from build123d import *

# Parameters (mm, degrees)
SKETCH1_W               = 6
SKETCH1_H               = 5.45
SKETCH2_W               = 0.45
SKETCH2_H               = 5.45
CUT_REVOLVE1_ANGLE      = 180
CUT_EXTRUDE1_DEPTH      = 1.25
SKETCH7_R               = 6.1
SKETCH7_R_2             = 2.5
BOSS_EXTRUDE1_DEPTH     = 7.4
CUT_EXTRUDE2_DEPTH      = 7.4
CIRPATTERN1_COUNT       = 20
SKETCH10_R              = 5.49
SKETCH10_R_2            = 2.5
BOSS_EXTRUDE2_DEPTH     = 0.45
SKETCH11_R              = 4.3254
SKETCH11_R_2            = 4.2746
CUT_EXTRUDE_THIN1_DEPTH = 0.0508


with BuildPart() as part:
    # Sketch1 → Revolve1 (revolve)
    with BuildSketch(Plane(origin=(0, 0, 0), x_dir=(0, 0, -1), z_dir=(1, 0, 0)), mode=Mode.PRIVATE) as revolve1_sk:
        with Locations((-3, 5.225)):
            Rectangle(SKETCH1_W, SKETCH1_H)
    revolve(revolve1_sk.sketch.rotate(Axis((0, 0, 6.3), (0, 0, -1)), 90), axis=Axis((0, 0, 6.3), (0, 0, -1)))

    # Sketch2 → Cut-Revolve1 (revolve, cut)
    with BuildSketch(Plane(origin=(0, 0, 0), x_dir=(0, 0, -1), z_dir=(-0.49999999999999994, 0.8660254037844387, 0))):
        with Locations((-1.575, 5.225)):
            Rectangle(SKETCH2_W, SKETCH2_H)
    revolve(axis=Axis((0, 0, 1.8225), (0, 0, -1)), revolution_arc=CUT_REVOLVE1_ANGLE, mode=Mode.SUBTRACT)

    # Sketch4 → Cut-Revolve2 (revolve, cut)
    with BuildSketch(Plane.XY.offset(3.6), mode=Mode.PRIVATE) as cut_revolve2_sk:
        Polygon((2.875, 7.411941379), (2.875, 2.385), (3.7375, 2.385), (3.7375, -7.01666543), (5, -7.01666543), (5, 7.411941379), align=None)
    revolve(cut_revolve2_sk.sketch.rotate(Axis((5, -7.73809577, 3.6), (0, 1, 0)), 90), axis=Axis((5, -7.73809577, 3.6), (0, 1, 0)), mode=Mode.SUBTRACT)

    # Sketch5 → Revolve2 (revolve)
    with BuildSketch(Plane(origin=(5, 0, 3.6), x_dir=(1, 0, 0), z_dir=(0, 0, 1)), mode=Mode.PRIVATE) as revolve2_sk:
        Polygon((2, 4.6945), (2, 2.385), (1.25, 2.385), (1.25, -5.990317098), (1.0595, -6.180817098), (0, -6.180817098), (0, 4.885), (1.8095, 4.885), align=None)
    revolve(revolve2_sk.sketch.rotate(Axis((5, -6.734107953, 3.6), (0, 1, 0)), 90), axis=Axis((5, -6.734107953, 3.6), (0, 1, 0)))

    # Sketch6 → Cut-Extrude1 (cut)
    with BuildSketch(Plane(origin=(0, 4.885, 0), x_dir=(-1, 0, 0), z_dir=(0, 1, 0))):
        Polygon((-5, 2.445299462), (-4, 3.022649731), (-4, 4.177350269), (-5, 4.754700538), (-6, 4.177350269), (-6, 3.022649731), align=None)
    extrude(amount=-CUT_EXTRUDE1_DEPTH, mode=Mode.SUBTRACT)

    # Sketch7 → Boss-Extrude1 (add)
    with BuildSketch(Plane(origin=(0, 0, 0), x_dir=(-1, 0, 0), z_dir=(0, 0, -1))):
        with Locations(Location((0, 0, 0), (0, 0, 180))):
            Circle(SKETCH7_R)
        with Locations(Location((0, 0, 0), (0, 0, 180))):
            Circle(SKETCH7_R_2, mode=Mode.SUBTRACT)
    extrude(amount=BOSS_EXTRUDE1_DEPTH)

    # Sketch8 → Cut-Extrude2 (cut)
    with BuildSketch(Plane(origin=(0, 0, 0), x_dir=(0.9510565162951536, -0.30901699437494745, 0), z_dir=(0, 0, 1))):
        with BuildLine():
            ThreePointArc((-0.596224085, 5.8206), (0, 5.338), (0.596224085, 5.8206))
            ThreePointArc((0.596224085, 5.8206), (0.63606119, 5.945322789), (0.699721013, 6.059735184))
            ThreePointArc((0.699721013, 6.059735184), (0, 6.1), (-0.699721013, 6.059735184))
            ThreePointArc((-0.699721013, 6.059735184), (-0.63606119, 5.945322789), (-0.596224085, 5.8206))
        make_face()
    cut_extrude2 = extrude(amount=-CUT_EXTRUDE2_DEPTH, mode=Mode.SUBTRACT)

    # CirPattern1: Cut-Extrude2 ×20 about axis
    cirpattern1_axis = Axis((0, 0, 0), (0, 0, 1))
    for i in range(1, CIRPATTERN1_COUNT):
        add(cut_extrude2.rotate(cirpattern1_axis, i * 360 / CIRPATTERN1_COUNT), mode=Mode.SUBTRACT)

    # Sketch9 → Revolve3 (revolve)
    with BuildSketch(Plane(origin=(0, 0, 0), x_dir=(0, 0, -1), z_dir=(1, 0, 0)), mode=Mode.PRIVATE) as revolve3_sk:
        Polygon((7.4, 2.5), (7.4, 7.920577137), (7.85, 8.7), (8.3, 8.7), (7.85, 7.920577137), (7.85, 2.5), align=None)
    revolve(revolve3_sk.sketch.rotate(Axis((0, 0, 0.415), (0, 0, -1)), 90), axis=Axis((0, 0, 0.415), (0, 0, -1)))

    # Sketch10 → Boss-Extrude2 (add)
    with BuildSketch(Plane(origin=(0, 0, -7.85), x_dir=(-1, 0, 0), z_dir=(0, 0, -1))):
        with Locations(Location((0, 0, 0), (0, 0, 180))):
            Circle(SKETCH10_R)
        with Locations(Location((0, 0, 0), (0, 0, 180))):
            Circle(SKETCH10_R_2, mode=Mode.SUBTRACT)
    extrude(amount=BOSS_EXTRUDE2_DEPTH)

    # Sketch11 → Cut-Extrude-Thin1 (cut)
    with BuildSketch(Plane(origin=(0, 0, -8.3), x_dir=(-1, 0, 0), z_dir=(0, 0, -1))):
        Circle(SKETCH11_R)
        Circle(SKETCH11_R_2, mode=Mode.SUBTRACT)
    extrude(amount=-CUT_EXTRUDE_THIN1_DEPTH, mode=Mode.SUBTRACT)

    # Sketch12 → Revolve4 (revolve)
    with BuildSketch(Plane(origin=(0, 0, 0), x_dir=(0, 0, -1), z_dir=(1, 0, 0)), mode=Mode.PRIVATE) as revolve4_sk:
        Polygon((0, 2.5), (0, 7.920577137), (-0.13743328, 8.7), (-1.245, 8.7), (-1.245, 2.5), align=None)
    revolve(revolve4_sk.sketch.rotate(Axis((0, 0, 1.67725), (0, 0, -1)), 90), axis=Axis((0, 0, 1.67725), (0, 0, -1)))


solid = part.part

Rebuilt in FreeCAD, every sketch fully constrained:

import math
import FreeCAD as App
import Part
import Sketcher

V = App.Vector
Q = App.Units.Quantity

doc = App.newDocument("Part")
params = doc.addObject("Spreadsheet::Sheet", "Params")
for row, (alias, value) in enumerate([
    ("sketch1_height", "6 mm"),
    ("sketch1_width", "5.45 mm"),
    ("revolution_angle", "360 deg"),
    ("sketch2_width", "0.45 mm"),
    ("sketch2_height", "5.45 mm"),
    ("groove_angle", "180 deg"),
    ("groove2_angle", "360 deg"),
    ("sketch4_width", "0.75 mm"),
    ("revolution2_angle", "360 deg"),
    ("pocket1_length", "1.25 mm"),
    ("sketch6_diameter", "5 mm"),
    ("sketch6_diameter2", "12.2 mm"),
    ("pad1_length", "7.4 mm"),
    ("sketch7_radius", "6.1 mm"),
    ("pocket2_length", "7.4 mm"),
    ("sketch8_length", "0.9 mm"),
    ("revolution3_angle", "360 deg"),
    ("sketch9_diameter", "5 mm"),
    ("sketch9_diameter2", "10.98 mm"),
    ("pad2_length", "0.45 mm"),
    ("pocket3_length", "0.0508 mm"),
    ("sketch11_width", "6.2 mm"),
    ("revolution4_angle", "360 deg"),
], start=1):
    params.set(f"A{row}", alias)
    params.set(f"B{row}", "=" + value)
    params.setAlias(f"B{row}", alias)

body = doc.addObject("PartDesign::Body", "Body")

# Sketch on YZ plane
sketch1 = body.newObject("Sketcher::SketchObject", "Sketch")
sketch1.AttachmentSupport = (doc.getObject("YZ_Plane"), [""])
sketch1.MapMode = "FlatFace"
sketch1.addGeometry(Part.LineSegment(V(8, 6, 0), V(2, 6, 0)), False)
sketch1.addGeometry(Part.LineSegment(V(2, 6, 0), V(2, 0, 0)), False)
sketch1.addGeometry(Part.LineSegment(V(2, 0, 0), V(8, 0, 0)), False)
sketch1.addGeometry(Part.LineSegment(V(8, 0, 0), V(8, 6, 0)), False)
sketch1.addConstraint(Sketcher.Constraint("Coincident", 0, 2, 1, 1))
sketch1.addConstraint(Sketcher.Constraint("Coincident", 1, 2, 2, 1))
sketch1.addConstraint(Sketcher.Constraint("Coincident", 2, 2, 3, 1))
sketch1.addConstraint(Sketcher.Constraint("Coincident", 3, 2, 0, 1))
sketch1.addConstraint(Sketcher.Constraint("Horizontal", 0))
sketch1.addConstraint(Sketcher.Constraint("Vertical", 1))
sketch1.addConstraint(Sketcher.Constraint("Horizontal", 2))
sketch1.addConstraint(Sketcher.Constraint("Vertical", 3))
sketch1.addConstraint(Sketcher.Constraint("PointOnObject", 1, 2, -1))
sketch1.addConstraint(Sketcher.Constraint("DistanceY", 1, 2, 1, 1, Q("6 mm")))
sketch1.addConstraint(Sketcher.Constraint("DistanceX", 0, 2, 0, 1, Q("5.45 mm")))
sketch1.addConstraint(Sketcher.Constraint("DistanceX", -1, 1, 0, 2, Q("2.5 mm")))
sketch1.setExpression("Constraints[9]", "Params.sketch1_height")
sketch1.setExpression("Constraints[10]", "Params.sketch1_width")
revolution = body.newObject("PartDesign::Revolution", "Revolution")
revolution.Profile = sketch1
revolution.ReferenceAxis = (sketch1, ["V_Axis"])
revolution.setExpression("Angle", "Params.revolution_angle")

# Sketch on an angled plane
sketch2 = body.newObject("Sketcher::SketchObject", "Sketch001")
sketch2.Placement = App.Placement(V(0, 0, 0), App.Rotation(V(0, 0, -1), V(-0.866025404, -0.5, 0), V(-0.5, 0.866025404, 0), "ZXY"))
sketch2.addGeometry(Part.LineSegment(V(-1.8, 7.95, 0), V(-1.8, 2.5, 0)), False)
sketch2.addGeometry(Part.LineSegment(V(-1.8, 2.5, 0), V(-1.35, 2.5, 0)), False)
sketch2.addGeometry(Part.LineSegment(V(-1.35, 2.5, 0), V(-1.35, 7.95, 0)), False)
sketch2.addGeometry(Part.LineSegment(V(-1.35, 7.95, 0), V(-1.8, 7.95, 0)), False)
sketch2.addConstraint(Sketcher.Constraint("Coincident", 0, 2, 1, 1))
sketch2.addConstraint(Sketcher.Constraint("Coincident", 1, 2, 2, 1))
sketch2.addConstraint(Sketcher.Constraint("Coincident", 2, 2, 3, 1))
sketch2.addConstraint(Sketcher.Constraint("Coincident", 3, 2, 0, 1))
sketch2.addConstraint(Sketcher.Constraint("Vertical", 0))
sketch2.addConstraint(Sketcher.Constraint("Horizontal", 1))
sketch2.addConstraint(Sketcher.Constraint("Vertical", 2))
sketch2.addConstraint(Sketcher.Constraint("Horizontal", 3))
sketch2.addConstraint(Sketcher.Constraint("DistanceX", 1, 1, 1, 2, Q("0.45 mm")))
sketch2.addConstraint(Sketcher.Constraint("DistanceY", 0, 2, 0, 1, Q("5.45 mm")))
sketch2.addConstraint(Sketcher.Constraint("DistanceX", 0, 2, -1, 1, Q("1.8 mm")))
sketch2.addConstraint(Sketcher.Constraint("DistanceY", -1, 1, 0, 2, Q("2.5 mm")))
sketch2.setExpression("Constraints[8]", "Params.sketch2_width")
sketch2.setExpression("Constraints[9]", "Params.sketch2_height")
groove = body.newObject("PartDesign::Groove", "Groove")
groove.Profile = sketch2
groove.ReferenceAxis = (sketch2, ["H_Axis"])
groove.setExpression("Angle", "Params.groove_angle")

# Sketch on XY plane
sketch3 = body.newObject("Sketcher::SketchObject", "Sketch002")
sketch3.AttachmentSupport = (doc.getObject("XY_Plane"), [""])
sketch3.MapMode = "FlatFace"
sketch3.AttachmentOffset = App.Placement(V(0, 0, 3.6), App.Rotation())
sketch3.addGeometry(Part.LineSegment(V(2.9, 7.4, 0), V(2.9, 2.4, 0)), False)
sketch3.addGeometry(Part.LineSegment(V(2.9, 2.4, 0), V(3.7, 2.4, 0)), False)
sketch3.addGeometry(Part.LineSegment(V(3.7, 2.4, 0), V(3.7, -7, 0)), False)
sketch3.addGeometry(Part.LineSegment(V(3.7, -7, 0), V(5, -7, 0)), False)
sketch3.addGeometry(Part.LineSegment(V(5, -7, 0), V(5, 7.4, 0)), False)
sketch3.addGeometry(Part.LineSegment(V(5, 7.4, 0), V(2.9, 7.4, 0)), False)
sketch3.addGeometry(Part.LineSegment(V(5, -7, 0), V(5, 7.4, 0)), True)  # axis
sketch3.addConstraint(Sketcher.Constraint("Coincident", 0, 2, 1, 1))
sketch3.addConstraint(Sketcher.Constraint("Coincident", 1, 2, 2, 1))
sketch3.addConstraint(Sketcher.Constraint("Coincident", 2, 2, 3, 1))
sketch3.addConstraint(Sketcher.Constraint("Coincident", 3, 2, 4, 1))
sketch3.addConstraint(Sketcher.Constraint("Coincident", 4, 2, 5, 1))
sketch3.addConstraint(Sketcher.Constraint("Coincident", 5, 2, 0, 1))
sketch3.addConstraint(Sketcher.Constraint("Vertical", 0))
sketch3.addConstraint(Sketcher.Constraint("Horizontal", 1))
sketch3.addConstraint(Sketcher.Constraint("Vertical", 2))
sketch3.addConstraint(Sketcher.Constraint("Horizontal", 3))
sketch3.addConstraint(Sketcher.Constraint("Vertical", 4))
sketch3.addConstraint(Sketcher.Constraint("Horizontal", 5))
sketch3.addConstraint(Sketcher.Constraint("Vertical", 6))
sketch3.addConstraint(Sketcher.Constraint("Coincident", 6, 1, 3, 2))
sketch3.addConstraint(Sketcher.Constraint("Horizontal", 5, 2, 6, 2))
sketch3.addConstraint(Sketcher.Constraint("DistanceX", -1, 1, 3, 2, Q("5 mm")))
sketch3.addConstraint(Sketcher.Constraint("DistanceX", 5, 2, 5, 1, Q("2.125 mm")))
sketch3.addConstraint(Sketcher.Constraint("DistanceX", 1, 1, 1, 2, Q("0.8625 mm")))
sketch3.addConstraint(Sketcher.Constraint("DistanceY", -1, 1, 0, 2, Q("2.385 mm")))
sketch3.addConstraint(Sketcher.Constraint("DistanceY", 0, 2, 0, 1, Q("5.026941 mm")))
sketch3.addConstraint(Sketcher.Constraint("DistanceY", 2, 2, 2, 1, Q("9.401665 mm")))
groove2 = body.newObject("PartDesign::Groove", "Groove001")
groove2.Profile = sketch3
groove2.ReferenceAxis = (sketch3, ["Axis0"])
groove2.setExpression("Angle", "Params.groove2_angle")

# Sketch on XY plane
sketch4 = body.newObject("Sketcher::SketchObject", "Sketch003")
sketch4.AttachmentSupport = (doc.getObject("XY_Plane"), [""])
sketch4.MapMode = "FlatFace"
sketch4.AttachmentOffset = App.Placement(V(0, 0, 3.6), App.Rotation())
sketch4.addGeometry(Part.LineSegment(V(7, 2.38, 0), V(7, 4.69, 0)), False)
sketch4.addGeometry(Part.LineSegment(V(7, 4.69, 0), V(6.81, 4.88, 0)), False)
sketch4.addGeometry(Part.LineSegment(V(6.81, 4.88, 0), V(5, 4.88, 0)), False)
sketch4.addGeometry(Part.LineSegment(V(5, 4.88, 0), V(5, -6.18, 0)), False)
sketch4.addGeometry(Part.LineSegment(V(5, -6.18, 0), V(6.06, -6.18, 0)), False)
sketch4.addGeometry(Part.LineSegment(V(6.06, -6.18, 0), V(6.25, -5.99, 0)), False)
sketch4.addGeometry(Part.LineSegment(V(6.25, -5.99, 0), V(6.25, 2.38, 0)), False)
sketch4.addGeometry(Part.LineSegment(V(6.25, 2.38, 0), V(7, 2.38, 0)), False)
sketch4.addGeometry(Part.LineSegment(V(5, -6.18, 0), V(5, 4.88, 0)), True)  # axis
sketch4.addConstraint(Sketcher.Constraint("Coincident", 0, 2, 1, 1))
sketch4.addConstraint(Sketcher.Constraint("Coincident", 1, 2, 2, 1))
sketch4.addConstraint(Sketcher.Constraint("Coincident", 2, 2, 3, 1))
sketch4.addConstraint(Sketcher.Constraint("Coincident", 3, 2, 4, 1))
sketch4.addConstraint(Sketcher.Constraint("Coincident", 4, 2, 5, 1))
sketch4.addConstraint(Sketcher.Constraint("Coincident", 5, 2, 6, 1))
sketch4.addConstraint(Sketcher.Constraint("Coincident", 6, 2, 7, 1))
sketch4.addConstraint(Sketcher.Constraint("Coincident", 7, 2, 0, 1))
sketch4.addConstraint(Sketcher.Constraint("Vertical", 0))
sketch4.addConstraint(Sketcher.Constraint("Horizontal", 2))
sketch4.addConstraint(Sketcher.Constraint("Vertical", 3))
sketch4.addConstraint(Sketcher.Constraint("Horizontal", 4))
sketch4.addConstraint(Sketcher.Constraint("Vertical", 6))
sketch4.addConstraint(Sketcher.Constraint("Horizontal", 7))
sketch4.addConstraint(Sketcher.Constraint("Vertical", 8))
sketch4.addConstraint(Sketcher.Constraint("Coincident", 8, 1, 3, 2))
sketch4.addConstraint(Sketcher.Constraint("Perpendicular", 1, 5))
sketch4.addConstraint(Sketcher.Constraint("Horizontal", 1, 2, 8, 2))
sketch4.addConstraint(Sketcher.Constraint("Equal", 1, 5))
sketch4.addConstraint(Sketcher.Constraint("Angle", 1, Q("135 deg")))
sketch4.addConstraint(Sketcher.Constraint("DistanceX", -1, 1, 0, 2, Q("7 mm")))
sketch4.addConstraint(Sketcher.Constraint("DistanceX", -1, 1, 2, 2, Q("5 mm")))
sketch4.addConstraint(Sketcher.Constraint("DistanceX", 7, 1, 7, 2, Q("0.75 mm")))
sketch4.addConstraint(Sketcher.Constraint("DistanceY", 6, 2, 1, 2, Q("2.5 mm")))
sketch4.addConstraint(Sketcher.Constraint("DistanceX", 2, 2, 2, 1, Q("1.8095 mm")))
sketch4.addConstraint(Sketcher.Constraint("DistanceY", -1, 1, 1, 2, Q("4.885 mm")))
sketch4.addConstraint(Sketcher.Constraint("DistanceY", 3, 2, 3, 1, Q("11.065817 mm")))
sketch4.setExpression("Constraints[22]", "Params.sketch4_width")
revolution2 = body.newObject("PartDesign::Revolution", "Revolution001")
revolution2.Profile = sketch4
revolution2.ReferenceAxis = (sketch4, ["Axis0"])
revolution2.setExpression("Angle", "Params.revolution2_angle")

# Sketch on XZ plane
sketch5 = body.newObject("Sketcher::SketchObject", "Sketch004")
sketch5.AttachmentSupport = (doc.getObject("XZ_Plane"), [""])
sketch5.MapMode = "FlatFace"
sketch5.AttachmentOffset = App.Placement(V(0, 0, -4.885), App.Rotation())
sketch5.addGeometry(Part.LineSegment(V(5, 2.4, 0), V(4, 3, 0)), False)
sketch5.addGeometry(Part.LineSegment(V(4, 3, 0), V(4, 4.2, 0)), False)
sketch5.addGeometry(Part.LineSegment(V(4, 4.2, 0), V(5, 4.8, 0)), False)
sketch5.addGeometry(Part.LineSegment(V(5, 4.8, 0), V(6, 4.2, 0)), False)
sketch5.addGeometry(Part.LineSegment(V(6, 4.2, 0), V(6, 3, 0)), False)
sketch5.addGeometry(Part.LineSegment(V(6, 3, 0), V(5, 2.4, 0)), False)
sketch5.addConstraint(Sketcher.Constraint("Coincident", 0, 2, 1, 1))
sketch5.addConstraint(Sketcher.Constraint("Coincident", 1, 2, 2, 1))
sketch5.addConstraint(Sketcher.Constraint("Coincident", 2, 2, 3, 1))
sketch5.addConstraint(Sketcher.Constraint("Coincident", 3, 2, 4, 1))
sketch5.addConstraint(Sketcher.Constraint("Coincident", 4, 2, 5, 1))
sketch5.addConstraint(Sketcher.Constraint("Coincident", 5, 2, 0, 1))
sketch5.addConstraint(Sketcher.Constraint("Vertical", 1))
sketch5.addConstraint(Sketcher.Constraint("Vertical", 4))
sketch5.addConstraint(Sketcher.Constraint("Parallel", 0, 3))
sketch5.addConstraint(Sketcher.Constraint("Parallel", 2, 5))
sketch5.addConstraint(Sketcher.Constraint("Horizontal", 1, 2, 3, 2))
sketch5.addConstraint(Sketcher.Constraint("Horizontal", 0, 2, 4, 2))
sketch5.addConstraint(Sketcher.Constraint("Vertical", 2, 2, 5, 2))
sketch5.addConstraint(Sketcher.Constraint("Angle", 0, Q("150 deg")))
sketch5.addConstraint(Sketcher.Constraint("DistanceX", -1, 1, 0, 2, Q("4 mm")))
sketch5.addConstraint(Sketcher.Constraint("DistanceX", -1, 1, 2, 2, Q("5 mm")))
sketch5.addConstraint(Sketcher.Constraint("DistanceY", 1, 1, 1, 2, Q("1.154701 mm")))
sketch5.addConstraint(Sketcher.Constraint("DistanceY", -1, 1, 2, 2, Q("4.754701 mm")))
pocket1 = body.newObject("PartDesign::Pocket", "Pocket")
pocket1.Profile = sketch5
pocket1.setExpression("Length", "Params.pocket1_length")
pocket1.Reversed = True

# Sketch on XY plane
sketch6 = body.newObject("Sketcher::SketchObject", "Sketch005")
sketch6.AttachmentSupport = (doc.getObject("XY_Plane"), [""])
sketch6.MapMode = "FlatFace"
sketch6.addGeometry(Part.Circle(V(0, 0, 0), V(0, 0, 1), 6.1), False)
sketch6.addGeometry(Part.Circle(V(0, 0, 0), V(0, 0, 1), 2.5), False)
sketch6.addConstraint(Sketcher.Constraint("Coincident", 0, 3, -1, 1))
sketch6.addConstraint(Sketcher.Constraint("Coincident", 1, 3, -1, 1))
sketch6.addConstraint(Sketcher.Constraint("Diameter", 1, Q("5 mm")))
sketch6.addConstraint(Sketcher.Constraint("Diameter", 0, Q("12.2 mm")))
sketch6.setExpression("Constraints[2]", "Params.sketch6_diameter")
sketch6.setExpression("Constraints[3]", "Params.sketch6_diameter2")
pad1 = body.newObject("PartDesign::Pad", "Pad")
pad1.Profile = sketch6
pad1.setExpression("Length", "Params.pad1_length")
pad1.Reversed = True

# Sketch on XY plane
sketch7 = body.newObject("Sketcher::SketchObject", "Sketch006")
sketch7.AttachmentSupport = (doc.getObject("XY_Plane"), [""])
sketch7.MapMode = "FlatFace"
sketch7.addGeometry(Part.ArcOfCircle(Part.Circle(V(1.84, 5.66, 0), V(0, 0, 1), 0.61), math.radians(174), math.radians(330)), False)
sketch7.addGeometry(Part.ArcOfCircle(Part.Circle(V(2.94, 5.02, 0), V(0, 0, 1), 0.66), math.radians(127), math.radians(150)), False)
sketch7.addGeometry(Part.ArcOfCircle(Part.Circle(V(0, 0, 0), V(0, 0, 1), 6.1), math.radians(65.41), math.radians(78.59)), False)
sketch7.addGeometry(Part.ArcOfCircle(Part.Circle(V(0.57, 5.79, 0), V(0, 0, 1), 0.66), math.radians(-6), math.radians(17)), False)
sketch7.addConstraint(Sketcher.Constraint("Tangent", 0, 2, 1, 2))
sketch7.addConstraint(Sketcher.Constraint("Coincident", 1, 1, 2, 1))
sketch7.addConstraint(Sketcher.Constraint("Coincident", 2, 2, 3, 2))
sketch7.addConstraint(Sketcher.Constraint("Tangent", 3, 1, 0, 1))
sketch7.addConstraint(Sketcher.Constraint("Coincident", 2, 3, -1, 1))
sketch7.addConstraint(Sketcher.Constraint("Equal", 1, 3))
sketch7.addConstraint(Sketcher.Constraint("Radius", 2, Q("6.1 mm")))
sketch7.addConstraint(Sketcher.Constraint("Radius", 0, Q("0.6096 mm")))
sketch7.addConstraint(Sketcher.Constraint("Radius", 1, Q("0.6604 mm")))
sketch7.addConstraint(Sketcher.Constraint("DistanceX", 3, 3, 0, 3, Q("1.2631 mm")))
sketch7.addConstraint(Sketcher.Constraint("DistanceY", 0, 2, 2, 2, Q("0.6279 mm")))
sketch7.addConstraint(Sketcher.Constraint("DistanceX", 2, 2, 1, 3, Q("1.730401 mm")))
sketch7.addConstraint(Sketcher.Constraint("DistanceX", -1, 1, 0, 3, Q("1.837909 mm")))
sketch7.setExpression("Constraints[6]", "Params.sketch7_radius")
pocket2 = body.newObject("PartDesign::Pocket", "Pocket001")
pocket2.Profile = sketch7
pocket2.setExpression("Length", "Params.pocket2_length")
doc.recompute()

polarpattern = body.newObject("PartDesign::PolarPattern", "PolarPattern")
polarpattern.Originals = [pocket2]
polarpattern.Axis = (doc.getObject("Z_Axis"), [""])
polarpattern.Angle = 360
polarpattern.Occurrences = 20
body.Tip = polarpattern

# Sketch on YZ plane
sketch8 = body.newObject("Sketcher::SketchObject", "Sketch007")
sketch8.AttachmentSupport = (doc.getObject("YZ_Plane"), [""])
sketch8.MapMode = "FlatFace"
sketch8.addGeometry(Part.LineSegment(V(7.92, -7.4, 0), V(2.5, -7.4, 0)), False)
sketch8.addGeometry(Part.LineSegment(V(2.5, -7.4, 0), V(2.5, -7.85, 0)), False)
sketch8.addGeometry(Part.LineSegment(V(2.5, -7.85, 0), V(7.92, -7.85, 0)), False)
sketch8.addGeometry(Part.LineSegment(V(7.92, -7.85, 0), V(8.7, -8.3, 0)), False)
sketch8.addGeometry(Part.LineSegment(V(8.7, -8.3, 0), V(8.7, -7.85, 0)), False)
sketch8.addGeometry(Part.LineSegment(V(8.7, -7.85, 0), V(7.92, -7.4, 0)), False)
sketch8.addConstraint(Sketcher.Constraint("Coincident", 0, 2, 1, 1))
sketch8.addConstraint(Sketcher.Constraint("Coincident", 1, 2, 2, 1))
sketch8.addConstraint(Sketcher.Constraint("Coincident", 2, 2, 3, 1))
sketch8.addConstraint(Sketcher.Constraint("Coincident", 3, 2, 4, 1))
sketch8.addConstraint(Sketcher.Constraint("Coincident", 4, 2, 5, 1))
sketch8.addConstraint(Sketcher.Constraint("Coincident", 5, 2, 0, 1))
sketch8.addConstraint(Sketcher.Constraint("Horizontal", 0))
sketch8.addConstraint(Sketcher.Constraint("Vertical", 1))
sketch8.addConstraint(Sketcher.Constraint("Horizontal", 2))
sketch8.addConstraint(Sketcher.Constraint("Vertical", 4))
sketch8.addConstraint(Sketcher.Constraint("Parallel", 3, 5))
sketch8.addConstraint(Sketcher.Constraint("Horizontal", 2, 2, 4, 2))
sketch8.addConstraint(Sketcher.Constraint("Vertical", 2, 2, 5, 2))
sketch8.addConstraint(Sketcher.Constraint("Angle", 3, Q("-30 deg")))
sketch8.addConstraint(Sketcher.Constraint("Distance", 3, Q("0.9 mm")))
sketch8.addConstraint(Sketcher.Constraint("DistanceX", -1, 1, 0, 2, Q("2.5 mm")))
sketch8.addConstraint(Sketcher.Constraint("DistanceY", 0, 2, -1, 1, Q("7.4 mm")))
sketch8.addConstraint(Sketcher.Constraint("DistanceX", -1, 1, 3, 2, Q("8.7 mm")))
sketch8.setExpression("Constraints[14]", "Params.sketch8_length")
revolution3 = body.newObject("PartDesign::Revolution", "Revolution002")
revolution3.Profile = sketch8
revolution3.ReferenceAxis = (sketch8, ["V_Axis"])
revolution3.setExpression("Angle", "Params.revolution3_angle")

# Sketch on XY plane
sketch9 = body.newObject("Sketcher::SketchObject", "Sketch008")
sketch9.AttachmentSupport = (doc.getObject("XY_Plane"), [""])
sketch9.MapMode = "FlatFace"
sketch9.AttachmentOffset = App.Placement(V(0, 0, -7.85), App.Rotation())
sketch9.addGeometry(Part.Circle(V(0, 0, 0), V(0, 0, 1), 5.5), False)
sketch9.addGeometry(Part.Circle(V(0, 0, 0), V(0, 0, 1), 2.5), False)
sketch9.addConstraint(Sketcher.Constraint("Coincident", 0, 3, -1, 1))
sketch9.addConstraint(Sketcher.Constraint("Coincident", 1, 3, -1, 1))
sketch9.addConstraint(Sketcher.Constraint("Diameter", 1, Q("5 mm")))
sketch9.addConstraint(Sketcher.Constraint("Diameter", 0, Q("10.98 mm")))
sketch9.setExpression("Constraints[2]", "Params.sketch9_diameter")
sketch9.setExpression("Constraints[3]", "Params.sketch9_diameter2")
pad2 = body.newObject("PartDesign::Pad", "Pad001")
pad2.Profile = sketch9
pad2.setExpression("Length", "Params.pad2_length")
pad2.Reversed = True

# Sketch on XY plane
sketch10 = body.newObject("Sketcher::SketchObject", "Sketch009")
sketch10.AttachmentSupport = (doc.getObject("XY_Plane"), [""])
sketch10.MapMode = "FlatFace"
sketch10.AttachmentOffset = App.Placement(V(0, 0, -8.3), App.Rotation())
sketch10.addGeometry(Part.Circle(V(0, 0, 0), V(0, 0, 1), 4.3), False)
sketch10.addGeometry(Part.Circle(V(0, 0, 0), V(0, 0, 1), 4.3), False)
sketch10.addConstraint(Sketcher.Constraint("Coincident", 0, 3, -1, 1))
sketch10.addConstraint(Sketcher.Constraint("Coincident", 1, 3, -1, 1))
sketch10.addConstraint(Sketcher.Constraint("Diameter", 0, Q("8.6508 mm")))
sketch10.addConstraint(Sketcher.Constraint("Diameter", 1, Q("8.5492 mm")))
pocket3 = body.newObject("PartDesign::Pocket", "Pocket002")
pocket3.Profile = sketch10
pocket3.setExpression("Length", "Params.pocket3_length")
pocket3.Reversed = True

# Sketch on YZ plane
sketch11 = body.newObject("Sketcher::SketchObject", "Sketch010")
sketch11.AttachmentSupport = (doc.getObject("YZ_Plane"), [""])
sketch11.MapMode = "FlatFace"
sketch11.addGeometry(Part.LineSegment(V(2.5, 0, 0), V(7.9, 0, 0)), False)
sketch11.addGeometry(Part.LineSegment(V(7.9, 0, 0), V(8.7, 0.1, 0)), False)
sketch11.addGeometry(Part.LineSegment(V(8.7, 0.1, 0), V(8.7, 1.2, 0)), False)
sketch11.addGeometry(Part.LineSegment(V(8.7, 1.2, 0), V(2.5, 1.2, 0)), False)
sketch11.addGeometry(Part.LineSegment(V(2.5, 1.2, 0), V(2.5, 0, 0)), False)
sketch11.addConstraint(Sketcher.Constraint("Coincident", 0, 2, 1, 1))
sketch11.addConstraint(Sketcher.Constraint("Coincident", 1, 2, 2, 1))
sketch11.addConstraint(Sketcher.Constraint("Coincident", 2, 2, 3, 1))
sketch11.addConstraint(Sketcher.Constraint("Coincident", 3, 2, 4, 1))
sketch11.addConstraint(Sketcher.Constraint("Coincident", 4, 2, 0, 1))
sketch11.addConstraint(Sketcher.Constraint("Horizontal", 0))
sketch11.addConstraint(Sketcher.Constraint("Vertical", 2))
sketch11.addConstraint(Sketcher.Constraint("Horizontal", 3))
sketch11.addConstraint(Sketcher.Constraint("Vertical", 4))
sketch11.addConstraint(Sketcher.Constraint("PointOnObject", 0, 2, -1))
sketch11.addConstraint(Sketcher.Constraint("Angle", 1, Q("10 deg")))
sketch11.addConstraint(Sketcher.Constraint("DistanceX", 3, 2, 3, 1, Q("6.2 mm")))
sketch11.addConstraint(Sketcher.Constraint("DistanceX", -1, 1, 1, 2, Q("8.7 mm")))
sketch11.addConstraint(Sketcher.Constraint("DistanceY", 4, 2, 4, 1, Q("1.245 mm")))
sketch11.addConstraint(Sketcher.Constraint("DistanceX", 0, 1, 0, 2, Q("5.420577 mm")))
sketch11.setExpression("Constraints[11]", "Params.sketch11_width")
revolution4 = body.newObject("PartDesign::Revolution", "Revolution003")
revolution4.Profile = sketch11
revolution4.ReferenceAxis = (sketch11, ["V_Axis"])
revolution4.setExpression("Angle", "Params.revolution4_angle")

doc.recompute()
